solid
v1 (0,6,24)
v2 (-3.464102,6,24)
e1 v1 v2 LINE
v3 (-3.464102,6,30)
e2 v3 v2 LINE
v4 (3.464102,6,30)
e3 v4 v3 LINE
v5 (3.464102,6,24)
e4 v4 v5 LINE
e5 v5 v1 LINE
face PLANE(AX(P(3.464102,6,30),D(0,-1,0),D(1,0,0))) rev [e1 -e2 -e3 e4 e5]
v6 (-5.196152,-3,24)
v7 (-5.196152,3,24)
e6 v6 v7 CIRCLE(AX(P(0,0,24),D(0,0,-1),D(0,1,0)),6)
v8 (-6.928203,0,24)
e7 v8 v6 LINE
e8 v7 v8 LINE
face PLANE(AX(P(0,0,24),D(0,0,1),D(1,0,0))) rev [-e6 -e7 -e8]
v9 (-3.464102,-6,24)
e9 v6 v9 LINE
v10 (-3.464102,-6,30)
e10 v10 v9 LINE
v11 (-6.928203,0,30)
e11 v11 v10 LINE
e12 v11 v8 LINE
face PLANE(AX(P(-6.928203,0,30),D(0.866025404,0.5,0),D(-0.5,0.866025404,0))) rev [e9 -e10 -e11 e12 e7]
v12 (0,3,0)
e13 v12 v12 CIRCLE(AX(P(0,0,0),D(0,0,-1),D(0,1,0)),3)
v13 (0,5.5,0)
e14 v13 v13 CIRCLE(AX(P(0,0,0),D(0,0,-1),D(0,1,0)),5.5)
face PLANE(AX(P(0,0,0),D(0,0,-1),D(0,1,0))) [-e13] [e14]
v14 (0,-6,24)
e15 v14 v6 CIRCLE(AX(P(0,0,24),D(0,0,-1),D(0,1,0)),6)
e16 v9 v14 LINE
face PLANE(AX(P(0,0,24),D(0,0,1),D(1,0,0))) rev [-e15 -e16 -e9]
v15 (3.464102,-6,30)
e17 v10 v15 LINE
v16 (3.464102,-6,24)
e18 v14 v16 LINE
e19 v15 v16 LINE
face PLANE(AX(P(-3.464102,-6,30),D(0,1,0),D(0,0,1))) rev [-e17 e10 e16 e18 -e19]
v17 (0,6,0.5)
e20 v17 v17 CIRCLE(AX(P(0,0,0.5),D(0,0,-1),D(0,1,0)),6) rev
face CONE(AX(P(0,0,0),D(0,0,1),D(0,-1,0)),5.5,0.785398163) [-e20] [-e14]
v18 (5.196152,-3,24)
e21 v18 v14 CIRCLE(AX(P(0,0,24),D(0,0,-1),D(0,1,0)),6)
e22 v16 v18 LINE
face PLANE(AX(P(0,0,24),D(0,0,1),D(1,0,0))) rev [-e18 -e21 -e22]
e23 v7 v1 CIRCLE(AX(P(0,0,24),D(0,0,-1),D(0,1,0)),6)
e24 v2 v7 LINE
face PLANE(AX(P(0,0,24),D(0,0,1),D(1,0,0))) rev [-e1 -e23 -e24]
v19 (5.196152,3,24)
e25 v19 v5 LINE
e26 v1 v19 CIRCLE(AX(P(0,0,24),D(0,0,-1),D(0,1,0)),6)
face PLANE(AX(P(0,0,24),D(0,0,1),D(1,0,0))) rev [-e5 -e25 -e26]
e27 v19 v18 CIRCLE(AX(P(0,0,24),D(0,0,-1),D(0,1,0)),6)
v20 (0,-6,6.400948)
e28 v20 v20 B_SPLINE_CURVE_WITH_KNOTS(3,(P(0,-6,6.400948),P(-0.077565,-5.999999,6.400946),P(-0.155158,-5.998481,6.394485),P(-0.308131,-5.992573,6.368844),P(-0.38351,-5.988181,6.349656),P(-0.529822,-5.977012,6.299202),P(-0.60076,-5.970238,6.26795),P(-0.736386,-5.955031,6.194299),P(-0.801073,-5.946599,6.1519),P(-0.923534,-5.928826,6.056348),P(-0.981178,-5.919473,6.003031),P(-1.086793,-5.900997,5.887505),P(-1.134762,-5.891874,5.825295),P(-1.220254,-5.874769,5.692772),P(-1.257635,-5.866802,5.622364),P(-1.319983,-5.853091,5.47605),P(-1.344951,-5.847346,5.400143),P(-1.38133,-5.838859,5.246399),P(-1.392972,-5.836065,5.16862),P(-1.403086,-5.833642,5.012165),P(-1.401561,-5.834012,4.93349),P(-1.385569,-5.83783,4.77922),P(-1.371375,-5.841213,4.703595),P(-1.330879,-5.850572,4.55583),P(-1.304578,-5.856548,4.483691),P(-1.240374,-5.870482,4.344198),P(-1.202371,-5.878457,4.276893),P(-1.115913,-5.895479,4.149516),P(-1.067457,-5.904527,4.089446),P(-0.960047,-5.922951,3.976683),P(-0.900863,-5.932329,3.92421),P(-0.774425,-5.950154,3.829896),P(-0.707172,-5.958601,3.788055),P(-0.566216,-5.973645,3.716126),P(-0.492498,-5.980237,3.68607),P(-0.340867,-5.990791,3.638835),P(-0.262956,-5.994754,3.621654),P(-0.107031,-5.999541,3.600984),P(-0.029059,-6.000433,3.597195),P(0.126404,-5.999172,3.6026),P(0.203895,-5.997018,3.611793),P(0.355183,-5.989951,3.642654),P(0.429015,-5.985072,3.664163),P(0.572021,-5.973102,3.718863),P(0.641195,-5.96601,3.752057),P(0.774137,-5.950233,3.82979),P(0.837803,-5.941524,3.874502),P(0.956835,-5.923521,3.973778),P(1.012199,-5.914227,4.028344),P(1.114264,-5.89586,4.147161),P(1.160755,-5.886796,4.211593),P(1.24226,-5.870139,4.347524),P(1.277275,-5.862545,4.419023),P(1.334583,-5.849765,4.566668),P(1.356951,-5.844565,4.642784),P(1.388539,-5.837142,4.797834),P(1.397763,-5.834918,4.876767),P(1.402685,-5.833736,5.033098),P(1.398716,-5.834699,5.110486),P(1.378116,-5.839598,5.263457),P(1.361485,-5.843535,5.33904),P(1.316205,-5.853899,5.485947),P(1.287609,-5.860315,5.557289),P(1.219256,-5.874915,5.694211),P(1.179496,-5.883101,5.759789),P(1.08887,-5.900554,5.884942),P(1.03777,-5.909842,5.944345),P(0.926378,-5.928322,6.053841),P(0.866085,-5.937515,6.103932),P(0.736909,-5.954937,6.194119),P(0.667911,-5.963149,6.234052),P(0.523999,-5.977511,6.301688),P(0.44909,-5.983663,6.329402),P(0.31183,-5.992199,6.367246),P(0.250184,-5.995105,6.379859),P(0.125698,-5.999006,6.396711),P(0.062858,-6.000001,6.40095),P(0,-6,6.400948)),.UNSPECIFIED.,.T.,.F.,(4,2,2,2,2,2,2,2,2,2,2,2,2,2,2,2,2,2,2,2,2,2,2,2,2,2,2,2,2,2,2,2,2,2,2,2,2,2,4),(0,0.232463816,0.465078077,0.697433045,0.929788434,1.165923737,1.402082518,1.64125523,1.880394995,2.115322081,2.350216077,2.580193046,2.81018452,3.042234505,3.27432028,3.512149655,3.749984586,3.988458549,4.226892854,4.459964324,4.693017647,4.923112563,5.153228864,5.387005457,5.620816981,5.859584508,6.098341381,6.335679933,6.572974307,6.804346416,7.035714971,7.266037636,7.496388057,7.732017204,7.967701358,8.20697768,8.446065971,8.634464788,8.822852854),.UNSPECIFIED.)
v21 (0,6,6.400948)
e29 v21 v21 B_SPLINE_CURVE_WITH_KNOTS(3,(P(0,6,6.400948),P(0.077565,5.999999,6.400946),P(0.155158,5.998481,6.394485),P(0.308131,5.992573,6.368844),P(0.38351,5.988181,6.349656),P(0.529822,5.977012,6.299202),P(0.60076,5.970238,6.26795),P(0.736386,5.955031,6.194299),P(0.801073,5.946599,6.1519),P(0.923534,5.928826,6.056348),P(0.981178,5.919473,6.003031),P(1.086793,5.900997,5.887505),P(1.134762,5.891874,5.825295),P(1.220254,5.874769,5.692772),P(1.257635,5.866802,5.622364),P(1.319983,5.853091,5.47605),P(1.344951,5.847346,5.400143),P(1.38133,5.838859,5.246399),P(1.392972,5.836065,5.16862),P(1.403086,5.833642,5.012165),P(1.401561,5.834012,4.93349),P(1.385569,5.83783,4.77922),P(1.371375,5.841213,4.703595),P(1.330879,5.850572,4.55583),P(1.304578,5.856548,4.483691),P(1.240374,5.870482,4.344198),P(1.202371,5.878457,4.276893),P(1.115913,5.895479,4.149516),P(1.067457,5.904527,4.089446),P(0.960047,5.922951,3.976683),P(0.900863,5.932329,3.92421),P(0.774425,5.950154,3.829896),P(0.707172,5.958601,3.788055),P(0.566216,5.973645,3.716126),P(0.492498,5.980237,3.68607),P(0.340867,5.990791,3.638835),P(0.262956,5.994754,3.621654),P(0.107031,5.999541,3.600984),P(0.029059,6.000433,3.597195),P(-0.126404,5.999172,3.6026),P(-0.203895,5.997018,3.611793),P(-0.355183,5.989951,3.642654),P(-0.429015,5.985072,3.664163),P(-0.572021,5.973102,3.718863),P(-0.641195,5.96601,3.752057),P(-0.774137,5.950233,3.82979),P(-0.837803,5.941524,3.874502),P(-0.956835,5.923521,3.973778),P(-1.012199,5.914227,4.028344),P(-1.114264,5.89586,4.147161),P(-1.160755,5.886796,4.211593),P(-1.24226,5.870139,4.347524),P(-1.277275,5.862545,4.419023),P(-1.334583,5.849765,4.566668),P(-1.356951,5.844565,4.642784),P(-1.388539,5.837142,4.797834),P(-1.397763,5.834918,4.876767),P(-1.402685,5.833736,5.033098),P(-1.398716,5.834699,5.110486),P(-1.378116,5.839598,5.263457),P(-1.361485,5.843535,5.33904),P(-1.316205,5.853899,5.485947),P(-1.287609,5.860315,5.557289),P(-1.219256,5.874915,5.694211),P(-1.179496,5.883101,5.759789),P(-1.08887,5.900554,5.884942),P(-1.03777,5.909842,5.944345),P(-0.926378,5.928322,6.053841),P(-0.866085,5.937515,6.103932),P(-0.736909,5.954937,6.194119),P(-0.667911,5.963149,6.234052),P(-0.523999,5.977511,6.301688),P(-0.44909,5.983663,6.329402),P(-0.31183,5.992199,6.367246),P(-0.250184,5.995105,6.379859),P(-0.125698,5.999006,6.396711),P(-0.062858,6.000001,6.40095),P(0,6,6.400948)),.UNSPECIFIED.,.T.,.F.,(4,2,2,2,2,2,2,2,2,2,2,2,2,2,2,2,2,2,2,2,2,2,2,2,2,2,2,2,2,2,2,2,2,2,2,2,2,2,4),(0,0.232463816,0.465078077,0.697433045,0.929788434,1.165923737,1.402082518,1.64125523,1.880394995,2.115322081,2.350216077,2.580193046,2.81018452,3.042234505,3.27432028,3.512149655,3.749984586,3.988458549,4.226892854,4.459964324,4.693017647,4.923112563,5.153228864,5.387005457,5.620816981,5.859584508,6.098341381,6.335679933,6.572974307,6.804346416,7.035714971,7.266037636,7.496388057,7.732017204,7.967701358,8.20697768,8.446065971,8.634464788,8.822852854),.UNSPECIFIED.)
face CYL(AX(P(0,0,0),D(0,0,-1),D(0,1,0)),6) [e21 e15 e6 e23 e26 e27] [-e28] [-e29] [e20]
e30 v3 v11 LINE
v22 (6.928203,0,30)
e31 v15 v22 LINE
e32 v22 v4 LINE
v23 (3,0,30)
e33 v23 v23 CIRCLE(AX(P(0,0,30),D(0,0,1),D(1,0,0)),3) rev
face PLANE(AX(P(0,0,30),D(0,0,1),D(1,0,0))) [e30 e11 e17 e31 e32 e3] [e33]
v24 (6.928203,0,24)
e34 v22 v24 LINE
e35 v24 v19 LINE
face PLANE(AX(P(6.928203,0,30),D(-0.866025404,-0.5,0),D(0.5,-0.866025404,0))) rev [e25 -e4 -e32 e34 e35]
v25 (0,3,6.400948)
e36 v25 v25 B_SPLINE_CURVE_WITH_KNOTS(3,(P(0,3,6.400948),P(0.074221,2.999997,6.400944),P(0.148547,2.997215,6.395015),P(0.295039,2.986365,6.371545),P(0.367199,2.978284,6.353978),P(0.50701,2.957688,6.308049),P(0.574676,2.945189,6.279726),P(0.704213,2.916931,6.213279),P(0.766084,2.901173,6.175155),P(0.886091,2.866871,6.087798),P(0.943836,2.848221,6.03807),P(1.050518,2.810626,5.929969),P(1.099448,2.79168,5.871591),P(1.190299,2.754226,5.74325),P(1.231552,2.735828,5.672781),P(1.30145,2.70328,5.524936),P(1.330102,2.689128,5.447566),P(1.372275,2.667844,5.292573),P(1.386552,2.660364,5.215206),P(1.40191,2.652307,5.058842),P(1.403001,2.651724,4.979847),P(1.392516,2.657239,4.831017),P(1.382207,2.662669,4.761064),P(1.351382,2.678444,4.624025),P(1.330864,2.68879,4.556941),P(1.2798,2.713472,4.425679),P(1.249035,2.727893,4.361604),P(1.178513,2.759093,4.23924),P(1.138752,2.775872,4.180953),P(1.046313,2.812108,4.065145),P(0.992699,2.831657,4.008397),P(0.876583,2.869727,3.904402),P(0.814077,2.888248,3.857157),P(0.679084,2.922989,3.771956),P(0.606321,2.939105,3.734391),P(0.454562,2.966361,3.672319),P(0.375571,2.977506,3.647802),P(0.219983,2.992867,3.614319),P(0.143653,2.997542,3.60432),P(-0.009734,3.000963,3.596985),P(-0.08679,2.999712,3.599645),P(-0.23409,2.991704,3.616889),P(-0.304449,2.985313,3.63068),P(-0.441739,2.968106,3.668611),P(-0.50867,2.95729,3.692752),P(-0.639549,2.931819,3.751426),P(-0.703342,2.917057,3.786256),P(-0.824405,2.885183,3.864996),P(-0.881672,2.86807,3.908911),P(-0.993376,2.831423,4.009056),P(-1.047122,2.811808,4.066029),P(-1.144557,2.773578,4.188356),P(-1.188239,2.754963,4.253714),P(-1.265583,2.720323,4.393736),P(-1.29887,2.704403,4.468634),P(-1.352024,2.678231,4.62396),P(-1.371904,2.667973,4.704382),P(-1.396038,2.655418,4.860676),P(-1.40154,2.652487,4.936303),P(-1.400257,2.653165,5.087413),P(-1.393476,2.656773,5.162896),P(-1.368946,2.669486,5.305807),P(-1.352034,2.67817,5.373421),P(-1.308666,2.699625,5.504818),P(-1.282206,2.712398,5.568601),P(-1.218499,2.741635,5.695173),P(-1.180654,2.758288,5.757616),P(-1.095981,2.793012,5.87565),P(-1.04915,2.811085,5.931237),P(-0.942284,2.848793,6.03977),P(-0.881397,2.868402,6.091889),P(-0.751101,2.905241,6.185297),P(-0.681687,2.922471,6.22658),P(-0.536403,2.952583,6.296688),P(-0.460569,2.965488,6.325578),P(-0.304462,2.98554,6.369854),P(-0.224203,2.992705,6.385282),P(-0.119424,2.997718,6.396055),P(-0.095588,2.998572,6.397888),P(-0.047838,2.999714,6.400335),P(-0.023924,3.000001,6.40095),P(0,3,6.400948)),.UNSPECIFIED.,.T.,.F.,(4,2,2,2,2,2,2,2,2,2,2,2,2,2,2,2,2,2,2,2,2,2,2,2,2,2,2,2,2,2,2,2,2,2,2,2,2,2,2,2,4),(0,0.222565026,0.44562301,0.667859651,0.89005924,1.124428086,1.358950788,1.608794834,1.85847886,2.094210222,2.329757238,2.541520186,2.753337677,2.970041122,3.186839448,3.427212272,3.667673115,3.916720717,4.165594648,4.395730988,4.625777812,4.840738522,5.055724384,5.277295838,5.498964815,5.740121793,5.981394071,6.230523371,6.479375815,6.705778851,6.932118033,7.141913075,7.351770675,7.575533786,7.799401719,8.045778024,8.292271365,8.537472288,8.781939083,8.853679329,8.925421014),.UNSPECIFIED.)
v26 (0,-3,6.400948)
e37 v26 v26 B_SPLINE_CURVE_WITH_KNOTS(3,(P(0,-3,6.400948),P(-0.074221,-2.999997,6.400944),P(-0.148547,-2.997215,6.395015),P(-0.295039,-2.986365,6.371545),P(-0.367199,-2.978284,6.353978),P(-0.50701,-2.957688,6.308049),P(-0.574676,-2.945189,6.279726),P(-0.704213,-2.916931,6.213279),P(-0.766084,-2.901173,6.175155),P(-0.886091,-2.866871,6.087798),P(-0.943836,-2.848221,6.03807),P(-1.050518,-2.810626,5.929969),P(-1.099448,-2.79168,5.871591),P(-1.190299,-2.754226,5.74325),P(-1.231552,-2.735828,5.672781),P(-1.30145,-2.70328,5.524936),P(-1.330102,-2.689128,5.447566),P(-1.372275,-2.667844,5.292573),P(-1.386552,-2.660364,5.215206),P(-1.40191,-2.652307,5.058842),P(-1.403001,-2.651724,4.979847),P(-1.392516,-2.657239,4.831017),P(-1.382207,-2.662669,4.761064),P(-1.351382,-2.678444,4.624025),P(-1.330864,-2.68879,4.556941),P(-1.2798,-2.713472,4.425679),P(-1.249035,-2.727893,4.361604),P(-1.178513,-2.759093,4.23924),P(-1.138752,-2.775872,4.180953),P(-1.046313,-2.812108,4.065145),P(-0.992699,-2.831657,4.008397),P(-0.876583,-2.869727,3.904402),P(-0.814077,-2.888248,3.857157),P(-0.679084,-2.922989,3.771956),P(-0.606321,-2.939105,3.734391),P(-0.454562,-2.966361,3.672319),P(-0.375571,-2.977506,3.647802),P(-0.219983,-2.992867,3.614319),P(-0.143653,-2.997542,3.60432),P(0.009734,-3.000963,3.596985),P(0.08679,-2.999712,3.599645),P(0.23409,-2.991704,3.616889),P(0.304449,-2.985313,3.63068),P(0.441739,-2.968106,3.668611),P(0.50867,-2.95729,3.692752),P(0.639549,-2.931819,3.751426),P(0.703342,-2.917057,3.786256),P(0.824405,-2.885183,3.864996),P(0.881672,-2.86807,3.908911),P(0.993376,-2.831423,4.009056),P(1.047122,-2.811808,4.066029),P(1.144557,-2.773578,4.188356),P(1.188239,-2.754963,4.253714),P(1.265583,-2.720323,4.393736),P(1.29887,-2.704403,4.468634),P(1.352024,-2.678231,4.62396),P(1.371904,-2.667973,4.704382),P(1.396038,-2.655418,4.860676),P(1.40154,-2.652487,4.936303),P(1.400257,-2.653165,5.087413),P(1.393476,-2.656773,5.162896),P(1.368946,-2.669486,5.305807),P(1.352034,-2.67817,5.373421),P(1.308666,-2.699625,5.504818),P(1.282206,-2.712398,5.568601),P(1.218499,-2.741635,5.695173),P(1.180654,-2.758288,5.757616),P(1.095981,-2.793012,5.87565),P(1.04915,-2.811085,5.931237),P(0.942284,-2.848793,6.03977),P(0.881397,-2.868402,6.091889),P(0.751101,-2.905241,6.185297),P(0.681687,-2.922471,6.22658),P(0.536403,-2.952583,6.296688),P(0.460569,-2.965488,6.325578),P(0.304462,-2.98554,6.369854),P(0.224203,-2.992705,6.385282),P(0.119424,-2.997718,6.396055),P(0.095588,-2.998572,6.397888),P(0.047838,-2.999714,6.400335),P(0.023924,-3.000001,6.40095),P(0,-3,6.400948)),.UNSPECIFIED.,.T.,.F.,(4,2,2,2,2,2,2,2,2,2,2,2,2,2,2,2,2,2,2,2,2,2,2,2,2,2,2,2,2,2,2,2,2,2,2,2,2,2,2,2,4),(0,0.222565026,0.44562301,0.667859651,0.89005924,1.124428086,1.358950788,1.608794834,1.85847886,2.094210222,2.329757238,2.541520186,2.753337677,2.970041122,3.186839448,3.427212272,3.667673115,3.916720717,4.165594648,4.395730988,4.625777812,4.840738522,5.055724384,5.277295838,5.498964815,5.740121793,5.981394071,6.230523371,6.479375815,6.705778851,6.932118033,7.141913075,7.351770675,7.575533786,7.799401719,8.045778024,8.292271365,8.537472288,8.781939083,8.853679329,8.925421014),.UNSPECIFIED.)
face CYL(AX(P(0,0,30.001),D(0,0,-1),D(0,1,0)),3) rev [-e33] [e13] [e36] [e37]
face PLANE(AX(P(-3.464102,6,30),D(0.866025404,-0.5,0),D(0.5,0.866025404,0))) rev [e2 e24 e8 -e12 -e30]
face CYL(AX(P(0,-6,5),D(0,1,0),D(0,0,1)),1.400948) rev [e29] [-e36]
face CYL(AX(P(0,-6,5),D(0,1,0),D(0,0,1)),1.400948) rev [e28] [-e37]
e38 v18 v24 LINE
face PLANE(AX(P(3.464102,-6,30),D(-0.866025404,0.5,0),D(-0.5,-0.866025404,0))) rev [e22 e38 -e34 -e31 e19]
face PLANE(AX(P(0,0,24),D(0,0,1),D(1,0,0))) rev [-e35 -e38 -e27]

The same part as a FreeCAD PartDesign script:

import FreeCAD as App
import Part
import Sketcher
from FreeCAD import Vector
Q = App.Units.Quantity


def edges_at(feature, points):
    """Names of the edges that pass closest to the given points."""
    edges = feature.Shape.Edges
    near = lambda p: min(range(len(edges)), key=lambda i: edges[i].distToShape(Part.Vertex(*p))[0])
    return sorted({f"Edge{near(p) + 1}" for p in points})


def add_polygon(sketch, points):
    """Adds a closed chain of lines whose ends are joined by coincident constraints."""
    first, n = sketch.GeometryCount, len(points)
    for a, b in zip(points, points[1:] + points[:1]):
        sketch.addGeometry(Part.LineSegment(App.Vector(*a, 0), App.Vector(*b, 0)), False)
    for i in range(n):
        sketch.addConstraint(Sketcher.Constraint("Coincident", first + i, 2, first + (i + 1) % n, 1))

doc = App.newDocument("Part")
body = doc.addObject("PartDesign::Body", "Body")

sketch1 = body.newObject("Sketcher::SketchObject", "Sketch")
sketch1.AttachmentSupport = (doc.getObject("YZ_Plane"), [""])
sketch1.MapMode = "FlatFace"
add_polygon(sketch1, [(6, 24), (0, 24), (0, 0), (6, 0)])
sketch1.addConstraint(Sketcher.Constraint("Horizontal", 0))
sketch1.addConstraint(Sketcher.Constraint("Vertical", 1))
sketch1.addConstraint(Sketcher.Constraint("Horizontal", 2))
sketch1.addConstraint(Sketcher.Constraint("Vertical", 3))
sketch1.addConstraint(Sketcher.Constraint("Coincident", 1, 2, -1, 1))
sketch1.addConstraint(Sketcher.Constraint("DistanceX", 0, 2, 0, 1, Q("6 mm")))
sketch1.addConstraint(Sketcher.Constraint("DistanceY", 1, 2, 1, 1, Q("24 mm")))
revolution = body.newObject("PartDesign::Revolution", "Revolution")
revolution.Profile = sketch1
revolution.ReferenceAxis = (sketch1, ["V_Axis"])
revolution.Angle = 360

sketch2 = body.newObject("Sketcher::SketchObject", "Sketch001")
sketch2.AttachmentSupport = (doc.getObject("XY_Plane"), [""])
sketch2.MapMode = "FlatFace"
sketch2.AttachmentOffset = App.Placement(Vector(0, 0, 24), App.Rotation())
add_polygon(sketch2, [(6.928203, 0), (3.464102, 6), (-3.464102, 6), (-6.928203, 0), (-3.464102, -6), (3.464102, -6)])
sketch2.addConstraint(Sketcher.Constraint("Horizontal", 1))
sketch2.addConstraint(Sketcher.Constraint("Horizontal", 4))
sketch2.addConstraint(Sketcher.Constraint("Symmetric", 0, 2, 3, 2, -1, 1))
sketch2.addConstraint(Sketcher.Constraint("Symmetric", 2, 2, 5, 2, -1, 1))
sketch2.addConstraint(Sketcher.Constraint("PointOnObject", 2, 2, -1))
sketch2.addConstraint(Sketcher.Constraint("Parallel", 2, 5))
sketch2.addConstraint(Sketcher.Constraint("Vertical", 1, 2, 3, 2))
sketch2.addConstraint(Sketcher.Constraint("Angle", 0, Q("120 deg")))
sketch2.addConstraint(Sketcher.Constraint("DistanceY", -1, 1, 0, 2, Q("6 mm")))
sketch2.addConstraint(Sketcher.Constraint("DistanceX", -1, 1, 0, 2, Q("3.464102 mm")))
pad1 = body.newObject("PartDesign::Pad", "Pad")
pad1.Profile = sketch2
pad1.Length = 6

sketch3 = body.newObject("Sketcher::SketchObject", "Sketch002")
sketch3.AttachmentSupport = (doc.getObject("XY_Plane"), [""])
sketch3.MapMode = "FlatFace"
sketch3.addGeometry(Part.Circle(Vector(0, 0, 0), Vector(0, 0, 1), 3), False)
sketch3.addConstraint(Sketcher.Constraint("Coincident", 0, 3, -1, 1))
sketch3.addConstraint(Sketcher.Constraint("Diameter", 0, Q("6 mm")))
pocket1 = body.newObject("PartDesign::Pocket", "Pocket")
pocket1.Profile = sketch3
pocket1.Type = "UpToFirst"
pocket1.Reversed = True

sketch4 = body.newObject("Sketcher::SketchObject", "Sketch003")
sketch4.AttachmentSupport = (doc.getObject("XZ_Plane"), [""])
sketch4.MapMode = "FlatFace"
sketch4.addGeometry(Part.Circle(Vector(0, 5, 0), Vector(0, 0, 1), 1.400948), False)
sketch4.addConstraint(Sketcher.Constraint("PointOnObject", 0, 3, -2))
sketch4.addConstraint(Sketcher.Constraint("DistanceY", -1, 1, 0, 3, Q("5 mm")))
sketch4.addConstraint(Sketcher.Constraint("Diameter", 0, Q("2.801897 mm")))
pocket2 = body.newObject("PartDesign::Pocket", "Pocket001")
pocket2.Profile = sketch4
pocket2.Type = "ThroughAll"
pocket2.Midplane = True
doc.recompute()

chamfer = body.newObject("PartDesign::Chamfer", "Chamfer")
chamfer.Base = (pocket2, edges_at(pocket2, [(0, -6, 0)]))
chamfer.Size = 0.5

doc.recompute()
